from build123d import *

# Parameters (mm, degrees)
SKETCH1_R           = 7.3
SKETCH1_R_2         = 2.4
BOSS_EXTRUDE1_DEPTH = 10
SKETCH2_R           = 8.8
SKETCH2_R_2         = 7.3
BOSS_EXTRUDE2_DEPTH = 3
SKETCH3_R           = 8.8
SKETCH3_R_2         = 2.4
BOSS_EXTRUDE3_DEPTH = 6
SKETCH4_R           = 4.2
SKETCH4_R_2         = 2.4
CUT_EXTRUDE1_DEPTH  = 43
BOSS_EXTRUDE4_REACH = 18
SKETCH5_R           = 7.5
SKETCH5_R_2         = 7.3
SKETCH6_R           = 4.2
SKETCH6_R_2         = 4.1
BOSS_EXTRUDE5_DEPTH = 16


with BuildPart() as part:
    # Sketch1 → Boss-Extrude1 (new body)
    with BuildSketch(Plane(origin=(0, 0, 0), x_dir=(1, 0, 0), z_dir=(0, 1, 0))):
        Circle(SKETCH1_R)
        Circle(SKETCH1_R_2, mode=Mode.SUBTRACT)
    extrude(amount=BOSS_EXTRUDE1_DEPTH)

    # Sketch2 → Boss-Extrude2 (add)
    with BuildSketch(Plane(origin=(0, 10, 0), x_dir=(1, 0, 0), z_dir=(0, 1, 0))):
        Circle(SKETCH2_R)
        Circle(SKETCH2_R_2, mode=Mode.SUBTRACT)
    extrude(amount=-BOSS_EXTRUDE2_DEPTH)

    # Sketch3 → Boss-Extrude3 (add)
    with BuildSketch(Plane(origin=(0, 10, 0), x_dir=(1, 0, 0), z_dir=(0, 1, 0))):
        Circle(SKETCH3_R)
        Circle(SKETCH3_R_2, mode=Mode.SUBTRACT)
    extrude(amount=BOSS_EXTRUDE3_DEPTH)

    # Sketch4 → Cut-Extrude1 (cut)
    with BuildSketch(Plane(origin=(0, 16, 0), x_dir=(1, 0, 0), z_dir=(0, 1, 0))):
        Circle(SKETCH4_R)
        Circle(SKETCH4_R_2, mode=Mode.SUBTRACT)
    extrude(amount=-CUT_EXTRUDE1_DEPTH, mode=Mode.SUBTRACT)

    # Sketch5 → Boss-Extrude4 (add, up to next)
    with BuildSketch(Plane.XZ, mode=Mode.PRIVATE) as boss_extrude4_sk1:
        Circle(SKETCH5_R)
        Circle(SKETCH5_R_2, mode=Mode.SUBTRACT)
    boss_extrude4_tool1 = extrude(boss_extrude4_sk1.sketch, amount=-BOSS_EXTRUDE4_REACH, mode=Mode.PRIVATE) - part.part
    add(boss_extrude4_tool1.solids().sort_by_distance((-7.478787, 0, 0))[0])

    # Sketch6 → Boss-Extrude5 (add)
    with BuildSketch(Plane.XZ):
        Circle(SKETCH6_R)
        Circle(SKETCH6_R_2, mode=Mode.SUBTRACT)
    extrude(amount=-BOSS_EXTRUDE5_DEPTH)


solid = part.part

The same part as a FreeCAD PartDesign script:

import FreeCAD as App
import Part
import Sketcher
Q = App.Units.Quantity

doc = App.newDocument("Part")
body = doc.addObject("PartDesign::Body", "Body")

sketch1 = body.newObject("Sketcher::SketchObject", "Sketch")
sketch1.AttachmentSupport = (doc.getObject("XZ_Plane"), [""])
sketch1.MapMode = "FlatFace"
sketch1.addGeometry([
    Part.Circle(App.Vector(0, 0, 0), App.Vector(0, 0, 1), 7.3),
    Part.Circle(App.Vector(0, 0, 0), App.Vector(0, 0, 1), 2.4),
], False)
sketch1.addConstraint([
    Sketcher.Constraint("Coincident", 0, 3, -1, 1),
    Sketcher.Constraint("Coincident", 1, 3, -1, 1),
    Sketcher.Constraint("Diameter", 0, Q("14.6 mm")),
    Sketcher.Constraint("Diameter", 1, Q("4.8 mm")),
])
pad1 = body.newObject("PartDesign::Pad", "Pad")
pad1.Profile = sketch1
pad1.Length = 10
pad1.Reversed = True

sketch2 = body.newObject("Sketcher::SketchObject", "Sketch001")
sketch2.AttachmentSupport = (doc.getObject("XZ_Plane"), [""])
sketch2.MapMode = "FlatFace"
sketch2.AttachmentOffset = App.Placement(App.Vector(0, 0, -10), App.Rotation())
sketch2.addGeometry([
    Part.Circle(App.Vector(0, 0, 0), App.Vector(0, 0, 1), 9),
    Part.Circle(App.Vector(0, 0, 0), App.Vector(0, 0, 1), 7),
], False)
sketch2.addConstraint([
    Sketcher.Constraint("Coincident", 0, 3, -1, 1),
    Sketcher.Constraint("Coincident", 1, 3, -1, 1),
    Sketcher.Constraint("Diameter", 0, Q("17.6 mm")),
    Sketcher.Constraint("Diameter", 1, Q("14.6 mm")),
])
pad2 = body.newObject("PartDesign::Pad", "Pad001")
pad2.Profile = sketch2
pad2.Length = 3

sketch3 = body.newObject("Sketcher::SketchObject", "Sketch002")
sketch3.AttachmentSupport = (doc.getObject("XZ_Plane"), [""])
sketch3.MapMode = "FlatFace"
sketch3.AttachmentOffset = App.Placement(App.Vector(0, 0, -10), App.Rotation())
sketch3.addGeometry([
    Part.Circle(App.Vector(0, 0, 0), App.Vector(0, 0, 1), 8.8),
    Part.Circle(App.Vector(0, 0, 0), App.Vector(0, 0, 1), 2.4),
], False)
sketch3.addConstraint([
    Sketcher.Constraint("Coincident", 0, 3, -1, 1),
    Sketcher.Constraint("Coincident", 1, 3, -1, 1),
    Sketcher.Constraint("Diameter", 0, Q("17.6 mm")),
    Sketcher.Constraint("Diameter", 1, Q("4.8 mm")),
])
pad3 = body.newObject("PartDesign::Pad", "Pad002")
pad3.Profile = sketch3
pad3.Length = 6
pad3.Reversed = True

sketch4 = body.newObject("Sketcher::SketchObject", "Sketch003")
sketch4.AttachmentSupport = (doc.getObject("XZ_Plane"), [""])
sketch4.MapMode = "FlatFace"
sketch4.AttachmentOffset = App.Placement(App.Vector(0, 0, -16), App.Rotation())
sketch4.addGeometry([
    Part.Circle(App.Vector(0, 0, 0), App.Vector(0, 0, 1), 4.2),
    Part.Circle(App.Vector(0, 0, 0), App.Vector(0, 0, 1), 2.4),
], False)
sketch4.addConstraint([
    Sketcher.Constraint("Coincident", 0, 3, -1, 1),
    Sketcher.Constraint("Coincident", 1, 3, -1, 1),
    Sketcher.Constraint("Diameter", 0, Q("8.4 mm")),
    Sketcher.Constraint("Diameter", 1, Q("4.8 mm")),
])
pocket1 = body.newObject("PartDesign::Pocket", "Pocket")
pocket1.Profile = sketch4
pocket1.Length = 43
pocket1.Reversed = True

sketch5 = body.newObject("Sketcher::SketchObject", "Sketch004")
sketch5.AttachmentSupport = (doc.getObject("XZ_Plane"), [""])
sketch5.MapMode = "FlatFace"
sketch5.addGeometry([
    Part.Circle(App.Vector(0, 0, 0), App.Vector(0, 0, 1), 8),
    Part.Circle(App.Vector(0, 0, 0), App.Vector(0, 0, 1), 7),
], False)
sketch5.addConstraint([
    Sketcher.Constraint("Coincident", 0, 3, -1, 1),
    Sketcher.Constraint("Coincident", 1, 3, -1, 1),
    Sketcher.Constraint("Diameter", 0, Q("15 mm")),
    Sketcher.Constraint("Diameter", 1, Q("14.6 mm")),
])
pad4 = body.newObject("PartDesign::Pad", "Pad003")
pad4.Profile = sketch5
pad4.Length = 7
pad4.Reversed = True

sketch6 = body.newObject("Sketcher::SketchObject", "Sketch005")
sketch6.AttachmentSupport = (doc.getObject("XZ_Plane"), [""])
sketch6.MapMode = "FlatFace"
sketch6.addGeometry([
    Part.Circle(App.Vector(0, 0, 0), App.Vector(0, 0, 1), 4.2),
    Part.Circle(App.Vector(0, 0, 0), App.Vector(0, 0, 1), 4.1),
], False)
sketch6.addConstraint([
    Sketcher.Constraint("Coincident", 0, 3, -1, 1),
    Sketcher.Constraint("Coincident", 1, 3, -1, 1),
    Sketcher.Constraint("Diameter", 0, Q("8.4 mm")),
    Sketcher.Constraint("Diameter", 1, Q("8.2 mm")),
])
pad5 = body.newObject("PartDesign::Pad", "Pad004")
pad5.Profile = sketch6
pad5.Length = 16
pad5.Reversed = True

doc.recompute()
